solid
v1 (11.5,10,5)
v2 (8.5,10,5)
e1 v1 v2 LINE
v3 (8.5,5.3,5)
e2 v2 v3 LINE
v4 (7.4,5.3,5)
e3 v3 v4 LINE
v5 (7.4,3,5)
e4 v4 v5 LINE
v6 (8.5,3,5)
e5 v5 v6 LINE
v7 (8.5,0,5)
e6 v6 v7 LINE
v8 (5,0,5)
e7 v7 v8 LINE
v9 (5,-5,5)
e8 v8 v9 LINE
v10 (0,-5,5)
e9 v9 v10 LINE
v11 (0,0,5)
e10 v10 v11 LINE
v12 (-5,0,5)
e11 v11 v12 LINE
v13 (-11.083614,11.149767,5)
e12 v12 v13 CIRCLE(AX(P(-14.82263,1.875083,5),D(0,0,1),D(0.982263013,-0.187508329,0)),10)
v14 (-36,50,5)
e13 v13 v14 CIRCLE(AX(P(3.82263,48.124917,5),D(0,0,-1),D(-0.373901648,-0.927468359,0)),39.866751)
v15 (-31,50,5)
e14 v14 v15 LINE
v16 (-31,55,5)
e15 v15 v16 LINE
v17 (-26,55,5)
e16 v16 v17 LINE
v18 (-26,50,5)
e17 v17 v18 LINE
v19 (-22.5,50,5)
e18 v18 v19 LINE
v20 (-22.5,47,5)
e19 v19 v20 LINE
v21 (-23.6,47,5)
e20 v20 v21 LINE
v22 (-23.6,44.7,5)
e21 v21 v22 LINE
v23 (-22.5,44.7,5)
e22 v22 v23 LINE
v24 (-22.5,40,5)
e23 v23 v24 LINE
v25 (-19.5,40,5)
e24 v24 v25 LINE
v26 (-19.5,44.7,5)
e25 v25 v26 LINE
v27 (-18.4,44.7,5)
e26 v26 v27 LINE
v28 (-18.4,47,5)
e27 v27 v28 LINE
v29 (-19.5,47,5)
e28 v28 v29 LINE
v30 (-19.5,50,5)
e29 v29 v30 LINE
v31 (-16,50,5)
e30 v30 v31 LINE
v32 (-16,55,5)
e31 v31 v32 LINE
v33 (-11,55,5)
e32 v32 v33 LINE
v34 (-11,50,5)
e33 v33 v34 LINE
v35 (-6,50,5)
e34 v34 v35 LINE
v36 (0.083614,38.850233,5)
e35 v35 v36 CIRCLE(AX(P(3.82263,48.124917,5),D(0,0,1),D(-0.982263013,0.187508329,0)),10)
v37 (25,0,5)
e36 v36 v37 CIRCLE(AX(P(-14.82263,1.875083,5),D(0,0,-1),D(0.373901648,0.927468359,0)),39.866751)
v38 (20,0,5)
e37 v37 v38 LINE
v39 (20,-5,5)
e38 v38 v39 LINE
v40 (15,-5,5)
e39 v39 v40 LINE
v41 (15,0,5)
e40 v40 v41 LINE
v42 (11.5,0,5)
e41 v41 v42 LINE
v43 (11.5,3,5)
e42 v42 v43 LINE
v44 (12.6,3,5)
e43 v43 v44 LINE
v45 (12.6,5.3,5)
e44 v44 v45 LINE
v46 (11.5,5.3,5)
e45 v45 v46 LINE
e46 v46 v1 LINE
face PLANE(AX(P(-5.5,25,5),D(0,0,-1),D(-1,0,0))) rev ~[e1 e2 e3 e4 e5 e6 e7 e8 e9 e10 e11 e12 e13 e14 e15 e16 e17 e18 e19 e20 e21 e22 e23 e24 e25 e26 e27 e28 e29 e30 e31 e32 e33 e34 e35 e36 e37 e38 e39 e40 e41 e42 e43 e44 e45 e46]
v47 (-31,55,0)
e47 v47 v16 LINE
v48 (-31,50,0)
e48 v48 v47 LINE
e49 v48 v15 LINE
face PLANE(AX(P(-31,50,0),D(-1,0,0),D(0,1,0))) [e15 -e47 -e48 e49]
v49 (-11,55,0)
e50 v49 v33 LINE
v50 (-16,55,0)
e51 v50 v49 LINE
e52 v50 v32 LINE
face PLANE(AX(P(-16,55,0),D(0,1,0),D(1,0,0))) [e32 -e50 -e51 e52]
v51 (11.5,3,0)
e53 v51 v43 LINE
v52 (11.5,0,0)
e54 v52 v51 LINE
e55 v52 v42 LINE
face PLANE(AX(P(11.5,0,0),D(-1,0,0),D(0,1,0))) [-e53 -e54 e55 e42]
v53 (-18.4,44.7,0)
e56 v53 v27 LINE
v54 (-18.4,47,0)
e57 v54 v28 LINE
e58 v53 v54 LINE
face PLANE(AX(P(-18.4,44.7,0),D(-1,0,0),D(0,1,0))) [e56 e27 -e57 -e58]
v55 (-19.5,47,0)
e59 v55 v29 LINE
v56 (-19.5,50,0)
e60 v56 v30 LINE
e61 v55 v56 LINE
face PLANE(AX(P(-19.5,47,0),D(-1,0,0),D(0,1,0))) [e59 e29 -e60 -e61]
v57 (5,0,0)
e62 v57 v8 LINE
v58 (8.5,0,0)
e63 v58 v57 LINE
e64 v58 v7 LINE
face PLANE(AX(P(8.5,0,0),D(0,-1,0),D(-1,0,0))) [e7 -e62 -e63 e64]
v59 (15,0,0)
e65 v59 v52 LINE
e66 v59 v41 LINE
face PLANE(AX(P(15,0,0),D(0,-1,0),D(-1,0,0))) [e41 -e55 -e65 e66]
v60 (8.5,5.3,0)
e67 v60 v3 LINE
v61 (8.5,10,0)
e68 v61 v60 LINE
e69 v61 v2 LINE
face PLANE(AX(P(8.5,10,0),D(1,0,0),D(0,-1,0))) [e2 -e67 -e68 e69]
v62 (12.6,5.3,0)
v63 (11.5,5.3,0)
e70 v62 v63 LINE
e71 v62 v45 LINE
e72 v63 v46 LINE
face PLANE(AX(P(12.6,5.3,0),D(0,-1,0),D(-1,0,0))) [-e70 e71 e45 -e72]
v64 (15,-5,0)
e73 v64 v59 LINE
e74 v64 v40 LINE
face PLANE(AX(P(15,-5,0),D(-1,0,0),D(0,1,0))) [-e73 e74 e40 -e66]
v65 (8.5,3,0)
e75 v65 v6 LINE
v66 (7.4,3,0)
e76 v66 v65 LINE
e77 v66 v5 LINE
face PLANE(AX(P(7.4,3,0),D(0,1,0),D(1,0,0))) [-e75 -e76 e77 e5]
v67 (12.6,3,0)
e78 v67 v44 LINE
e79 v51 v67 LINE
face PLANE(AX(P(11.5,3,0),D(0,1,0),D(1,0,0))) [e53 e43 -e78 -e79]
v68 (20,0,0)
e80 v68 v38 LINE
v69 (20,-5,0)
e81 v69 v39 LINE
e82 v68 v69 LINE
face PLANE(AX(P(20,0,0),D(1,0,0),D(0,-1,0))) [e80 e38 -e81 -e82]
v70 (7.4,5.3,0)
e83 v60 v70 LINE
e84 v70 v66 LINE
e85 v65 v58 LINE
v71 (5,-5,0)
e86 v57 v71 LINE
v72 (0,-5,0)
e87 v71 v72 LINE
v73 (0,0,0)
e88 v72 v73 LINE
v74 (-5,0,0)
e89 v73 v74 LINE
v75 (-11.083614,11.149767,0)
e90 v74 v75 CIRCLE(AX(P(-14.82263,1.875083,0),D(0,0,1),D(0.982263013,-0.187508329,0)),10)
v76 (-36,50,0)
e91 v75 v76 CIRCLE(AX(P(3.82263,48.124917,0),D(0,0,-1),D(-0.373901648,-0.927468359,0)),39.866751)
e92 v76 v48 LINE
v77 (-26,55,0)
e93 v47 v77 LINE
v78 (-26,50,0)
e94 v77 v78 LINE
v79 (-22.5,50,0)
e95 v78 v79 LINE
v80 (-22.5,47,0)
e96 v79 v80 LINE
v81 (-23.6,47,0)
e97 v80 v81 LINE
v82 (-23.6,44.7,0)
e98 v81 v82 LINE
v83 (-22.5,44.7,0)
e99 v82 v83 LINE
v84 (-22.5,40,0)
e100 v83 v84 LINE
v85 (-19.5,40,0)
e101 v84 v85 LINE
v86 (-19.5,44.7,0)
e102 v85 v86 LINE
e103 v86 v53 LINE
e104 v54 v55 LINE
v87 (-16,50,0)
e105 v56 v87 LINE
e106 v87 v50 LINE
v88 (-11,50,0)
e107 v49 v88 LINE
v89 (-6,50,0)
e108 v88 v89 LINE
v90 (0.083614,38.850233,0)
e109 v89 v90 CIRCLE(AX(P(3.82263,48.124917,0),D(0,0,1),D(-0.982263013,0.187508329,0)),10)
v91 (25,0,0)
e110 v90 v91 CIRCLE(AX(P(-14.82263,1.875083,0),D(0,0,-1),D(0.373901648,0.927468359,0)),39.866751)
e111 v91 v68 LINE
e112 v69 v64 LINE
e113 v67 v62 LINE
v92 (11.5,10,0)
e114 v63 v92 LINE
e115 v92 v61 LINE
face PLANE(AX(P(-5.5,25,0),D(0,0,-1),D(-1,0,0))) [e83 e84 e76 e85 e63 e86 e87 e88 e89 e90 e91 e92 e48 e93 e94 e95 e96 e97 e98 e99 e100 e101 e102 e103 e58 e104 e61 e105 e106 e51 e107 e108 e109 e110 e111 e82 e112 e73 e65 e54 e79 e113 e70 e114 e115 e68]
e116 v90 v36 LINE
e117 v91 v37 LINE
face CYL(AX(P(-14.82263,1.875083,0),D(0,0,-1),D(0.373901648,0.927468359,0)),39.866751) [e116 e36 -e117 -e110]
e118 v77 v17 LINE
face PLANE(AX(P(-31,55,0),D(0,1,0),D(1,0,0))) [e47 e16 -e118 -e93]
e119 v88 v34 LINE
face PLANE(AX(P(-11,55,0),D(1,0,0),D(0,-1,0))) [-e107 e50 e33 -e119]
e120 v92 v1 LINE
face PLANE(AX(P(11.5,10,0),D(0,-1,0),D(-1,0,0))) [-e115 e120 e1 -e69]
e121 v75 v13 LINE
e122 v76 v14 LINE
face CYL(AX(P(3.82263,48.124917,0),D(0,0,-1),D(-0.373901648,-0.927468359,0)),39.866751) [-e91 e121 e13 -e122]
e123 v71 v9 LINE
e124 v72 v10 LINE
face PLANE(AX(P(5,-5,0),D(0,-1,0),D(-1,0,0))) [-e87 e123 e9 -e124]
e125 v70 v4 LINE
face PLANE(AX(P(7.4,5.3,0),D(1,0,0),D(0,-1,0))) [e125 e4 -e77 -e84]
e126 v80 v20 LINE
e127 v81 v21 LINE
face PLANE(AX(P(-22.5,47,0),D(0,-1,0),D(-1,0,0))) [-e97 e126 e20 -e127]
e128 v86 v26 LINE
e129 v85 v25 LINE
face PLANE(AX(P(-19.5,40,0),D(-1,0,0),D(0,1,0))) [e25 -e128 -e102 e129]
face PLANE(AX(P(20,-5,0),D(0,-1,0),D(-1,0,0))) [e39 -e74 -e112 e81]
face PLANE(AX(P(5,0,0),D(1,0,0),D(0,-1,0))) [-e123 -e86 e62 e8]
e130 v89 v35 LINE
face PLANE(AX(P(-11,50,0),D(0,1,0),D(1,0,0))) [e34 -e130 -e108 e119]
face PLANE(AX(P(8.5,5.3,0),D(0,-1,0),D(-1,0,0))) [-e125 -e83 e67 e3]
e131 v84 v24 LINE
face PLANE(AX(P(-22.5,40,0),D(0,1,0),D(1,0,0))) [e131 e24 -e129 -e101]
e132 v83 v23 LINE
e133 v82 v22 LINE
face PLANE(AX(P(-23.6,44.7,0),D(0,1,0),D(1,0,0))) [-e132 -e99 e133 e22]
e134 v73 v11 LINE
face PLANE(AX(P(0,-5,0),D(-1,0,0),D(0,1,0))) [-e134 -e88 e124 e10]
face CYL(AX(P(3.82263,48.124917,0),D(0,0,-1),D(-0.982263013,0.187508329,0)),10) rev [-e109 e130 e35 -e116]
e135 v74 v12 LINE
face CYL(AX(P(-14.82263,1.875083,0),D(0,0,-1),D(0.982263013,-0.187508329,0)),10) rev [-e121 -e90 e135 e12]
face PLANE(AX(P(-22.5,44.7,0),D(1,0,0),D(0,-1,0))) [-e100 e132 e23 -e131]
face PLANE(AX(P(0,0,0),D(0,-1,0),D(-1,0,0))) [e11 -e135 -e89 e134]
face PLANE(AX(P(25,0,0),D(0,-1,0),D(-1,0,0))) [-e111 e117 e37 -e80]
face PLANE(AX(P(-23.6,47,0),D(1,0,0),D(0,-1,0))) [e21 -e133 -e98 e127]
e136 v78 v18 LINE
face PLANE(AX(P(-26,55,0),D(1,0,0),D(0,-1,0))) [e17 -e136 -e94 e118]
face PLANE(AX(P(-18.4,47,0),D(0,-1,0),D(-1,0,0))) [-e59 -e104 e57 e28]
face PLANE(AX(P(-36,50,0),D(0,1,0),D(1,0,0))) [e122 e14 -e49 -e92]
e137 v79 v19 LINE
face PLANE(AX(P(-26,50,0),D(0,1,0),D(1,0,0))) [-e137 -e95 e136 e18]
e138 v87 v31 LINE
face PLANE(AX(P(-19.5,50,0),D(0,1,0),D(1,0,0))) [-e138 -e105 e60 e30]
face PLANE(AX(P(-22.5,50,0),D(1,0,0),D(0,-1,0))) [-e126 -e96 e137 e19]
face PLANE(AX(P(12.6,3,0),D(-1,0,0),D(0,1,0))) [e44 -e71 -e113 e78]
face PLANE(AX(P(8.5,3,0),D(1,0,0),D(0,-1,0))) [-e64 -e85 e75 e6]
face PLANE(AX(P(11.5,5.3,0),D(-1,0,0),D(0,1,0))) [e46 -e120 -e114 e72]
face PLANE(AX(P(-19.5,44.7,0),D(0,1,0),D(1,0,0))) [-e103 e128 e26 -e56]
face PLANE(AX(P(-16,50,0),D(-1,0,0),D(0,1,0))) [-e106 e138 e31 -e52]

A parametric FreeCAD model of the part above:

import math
import FreeCAD as App
import Part
import Sketcher

V = App.Vector

doc = App.newDocument("Part")
body = doc.addObject("PartDesign::Body", "Body")

sketch1 = body.newObject("Sketcher::SketchObject", "Sketch")
sketch1.AttachmentSupport = (doc.getObject("XY_Plane"), [""])
sketch1.MapMode = "FlatFace"
sketch1.addGeometry([
    Part.LineSegment(V(-6, 50, 0), V(-11, 50, 0)),
    Part.LineSegment(V(-11, 50, 0), V(-11, 55, 0)),
    Part.LineSegment(V(-11, 55, 0), V(-16, 55, 0)),
    Part.LineSegment(V(-16, 55, 0), V(-16, 50, 0)),
    Part.LineSegment(V(-16, 50, 0), V(-19.5, 50, 0)),
    Part.LineSegment(V(-19.5, 50, 0), V(-19.5, 47, 0)),
    Part.LineSegment(V(-19.5, 47, 0), V(-18.4, 47, 0)),
    Part.LineSegment(V(-18.4, 47, 0), V(-18.4, 44.7, 0)),
    Part.LineSegment(V(-18.4, 44.7, 0), V(-19.5, 44.7, 0)),
    Part.LineSegment(V(-19.5, 44.7, 0), V(-19.5, 40, 0)),
    Part.LineSegment(V(-19.5, 40, 0), V(-22.5, 40, 0)),
    Part.LineSegment(V(-22.5, 40, 0), V(-22.5, 44.7, 0)),
    Part.LineSegment(V(-22.5, 44.7, 0), V(-23.6, 44.7, 0)),
    Part.LineSegment(V(-23.6, 44.7, 0), V(-23.6, 47, 0)),
    Part.LineSegment(V(-23.6, 47, 0), V(-22.5, 47, 0)),
    Part.LineSegment(V(-22.5, 47, 0), V(-22.5, 50, 0)),
    Part.LineSegment(V(-22.5, 50, 0), V(-26, 50, 0)),
    Part.LineSegment(V(-26, 50, 0), V(-26, 55, 0)),
    Part.LineSegment(V(-26, 55, 0), V(-31, 55, 0)),
    Part.LineSegment(V(-31, 55, 0), V(-31, 50, 0)),
    Part.LineSegment(V(-31, 50, 0), V(-36, 50, 0)),
    Part.ArcOfCircle(Part.Circle(V(3.82263, 48.124917, 0), V(0, 0, 1), 39.866751), math.radians(177.304169), math.radians(248.043556)),
    Part.ArcOfCircle(Part.Circle(V(-14.82263, 1.875083, 0), V(0, 0, 1), 10), math.radians(-10.807409), math.radians(68.043556)),
    Part.LineSegment(V(-5, 0, 0), V(0, 0, 0)),
    Part.LineSegment(V(0, 0, 0), V(0, -5, 0)),
    Part.LineSegment(V(0, -5, 0), V(5, -5, 0)),
    Part.LineSegment(V(5, -5, 0), V(5, 0, 0)),
    Part.LineSegment(V(5, 0, 0), V(8.5, 0, 0)),
    Part.LineSegment(V(8.5, 0, 0), V(8.5, 3, 0)),
    Part.LineSegment(V(8.5, 3, 0), V(7.4, 3, 0)),
    Part.LineSegment(V(7.4, 3, 0), V(7.4, 5.3, 0)),
    Part.LineSegment(V(7.4, 5.3, 0), V(8.5, 5.3, 0)),
    Part.LineSegment(V(8.5, 5.3, 0), V(8.5, 10, 0)),
    Part.LineSegment(V(8.5, 10, 0), V(11.5, 10, 0)),
    Part.LineSegment(V(11.5, 10, 0), V(11.5, 5.3, 0)),
    Part.LineSegment(V(11.5, 5.3, 0), V(12.6, 5.3, 0)),
    Part.LineSegment(V(12.6, 5.3, 0), V(12.6, 3, 0)),
    Part.LineSegment(V(12.6, 3, 0), V(11.5, 3, 0)),
    Part.LineSegment(V(11.5, 3, 0), V(11.5, 0, 0)),
    Part.LineSegment(V(11.5, 0, 0), V(15, 0, 0)),
    Part.LineSegment(V(15, 0, 0), V(15, -5, 0)),
    Part.LineSegment(V(15, -5, 0), V(20, -5, 0)),
    Part.LineSegment(V(20, -5, 0), V(20, 0, 0)),
    Part.LineSegment(V(20, 0, 0), V(25, 0, 0)),
    Part.ArcOfCircle(Part.Circle(V(-14.82263, 1.875083, 0), V(0, 0, 1), 39.866751), math.radians(-2.695831), math.radians(68.043556)),
    Part.ArcOfCircle(Part.Circle(V(3.82263, 48.124917, 0), V(0, 0, 1), 10), math.radians(169.192591), math.radians(248.043556)),
], False)
sketch1.addConstraint([
    Sketcher.Constraint("Coincident", 0, 2, 1, 1),
    Sketcher.Constraint("Coincident", 1, 2, 2, 1),
    Sketcher.Constraint("Coincident", 2, 2, 3, 1),
    Sketcher.Constraint("Coincident", 3, 2, 4, 1),
    Sketcher.Constraint("Coincident", 4, 2, 5, 1),
    Sketcher.Constraint("Coincident", 5, 2, 6, 1),
    Sketcher.Constraint("Coincident", 6, 2, 7, 1),
    Sketcher.Constraint("Coincident", 7, 2, 8, 1),
    Sketcher.Constraint("Coincident", 8, 2, 9, 1),
    Sketcher.Constraint("Coincident", 9, 2, 10, 1),
    Sketcher.Constraint("Coincident", 10, 2, 11, 1),
    Sketcher.Constraint("Coincident", 11, 2, 12, 1),
    Sketcher.Constraint("Coincident", 12, 2, 13, 1),
    Sketcher.Constraint("Coincident", 13, 2, 14, 1),
    Sketcher.Constraint("Coincident", 14, 2, 15, 1),
    Sketcher.Constraint("Coincident", 15, 2, 16, 1),
    Sketcher.Constraint("Coincident", 16, 2, 17, 1),
    Sketcher.Constraint("Coincident", 17, 2, 18, 1),
    Sketcher.Constraint("Coincident", 18, 2, 19, 1),
    Sketcher.Constraint("Coincident", 19, 2, 20, 1),
    Sketcher.Constraint("Coincident", 20, 2, 21, 1),
    Sketcher.Constraint("Tangent", 21, 2, 22, 2),
    Sketcher.Constraint("Coincident", 22, 1, 23, 1),
    Sketcher.Constraint("Coincident", 23, 2, 24, 1),
    Sketcher.Constraint("Coincident", 24, 2, 25, 1),
    Sketcher.Constraint("Coincident", 25, 2, 26, 1),
    Sketcher.Constraint("Coincident", 26, 2, 27, 1),
    Sketcher.Constraint("Coincident", 27, 2, 28, 1),
    Sketcher.Constraint("Coincident", 28, 2, 29, 1),
    Sketcher.Constraint("Coincident", 29, 2, 30, 1),
    Sketcher.Constraint("Coincident", 30, 2, 31, 1),
    Sketcher.Constraint("Coincident", 31, 2, 32, 1),
    Sketcher.Constraint("Coincident", 32, 2, 33, 1),
    Sketcher.Constraint("Coincident", 33, 2, 34, 1),
    Sketcher.Constraint("Coincident", 34, 2, 35, 1),
    Sketcher.Constraint("Coincident", 35, 2, 36, 1),
    Sketcher.Constraint("Coincident", 36, 2, 37, 1),
    Sketcher.Constraint("Coincident", 37, 2, 38, 1),
    Sketcher.Constraint("Coincident", 38, 2, 39, 1),
    Sketcher.Constraint("Coincident", 39, 2, 40, 1),
    Sketcher.Constraint("Coincident", 40, 2, 41, 1),
    Sketcher.Constraint("Coincident", 41, 2, 42, 1),
    Sketcher.Constraint("Coincident", 42, 2, 43, 1),
    Sketcher.Constraint("Coincident", 43, 2, 44, 1),
    Sketcher.Constraint("Tangent", 44, 2, 45, 2),
    Sketcher.Constraint("Coincident", 45, 1, 0, 1),
    Sketcher.Constraint("Horizontal", 0),
    Sketcher.Constraint("Vertical", 1),
    Sketcher.Constraint("Horizontal", 2),
    Sketcher.Constraint("Vertical", 3),
    Sketcher.Constraint("Horizontal", 4),
    Sketcher.Constraint("Vertical", 5),
    Sketcher.Constraint("Horizontal", 6),
    Sketcher.Constraint("Vertical", 7),
    Sketcher.Constraint("Horizontal", 8),
    Sketcher.Constraint("Vertical", 9),
    Sketcher.Constraint("Horizontal", 10),
    Sketcher.Constraint("Vertical", 11),
    Sketcher.Constraint("Horizontal", 12),
    Sketcher.Constraint("Vertical", 13),
    Sketcher.Constraint("Horizontal", 14),
    Sketcher.Constraint("Vertical", 15),
    Sketcher.Constraint("Horizontal", 16),
    Sketcher.Constraint("Vertical", 17),
    Sketcher.Constraint("Horizontal", 18),
    Sketcher.Constraint("Vertical", 19),
    Sketcher.Constraint("Horizontal", 20),
    Sketcher.Constraint("Horizontal", 23),
    Sketcher.Constraint("Vertical", 24),
    Sketcher.Constraint("Horizontal", 25),
    Sketcher.Constraint("Vertical", 26),
    Sketcher.Constraint("Horizontal", 27),
    Sketcher.Constraint("Vertical", 28),
    Sketcher.Constraint("Horizontal", 29),
    Sketcher.Constraint("Vertical", 30),
    Sketcher.Constraint("Horizontal", 31),
    Sketcher.Constraint("Vertical", 32),
    Sketcher.Constraint("Horizontal", 33),
    Sketcher.Constraint("Vertical", 34),
    Sketcher.Constraint("Horizontal", 35),
    Sketcher.Constraint("Vertical", 36),
    Sketcher.Constraint("Horizontal", 37),
    Sketcher.Constraint("Vertical", 38),
    Sketcher.Constraint("Horizontal", 39),
    Sketcher.Constraint("Vertical", 40),
    Sketcher.Constraint("Horizontal", 41),
    Sketcher.Constraint("Vertical", 42),
    Sketcher.Constraint("Horizontal", 43),
    Sketcher.Constraint("Coincident", 23, 2, -1, 1),
    Sketcher.Constraint("Coincident", 44, 3, 22, 3),
    Sketcher.Constraint("Coincident", 45, 3, 21, 3),
    Sketcher.Constraint("Equal", 21, 44),
    Sketcher.Constraint("Symmetric", 22, 1, 26, 2, -1, 1),
    Sketcher.Constraint("PointOnObject", 38, 2, -1),
    Sketcher.Constraint("PointOnObject", 42, 2, -1),
    Sketcher.Constraint("Horizontal", 0, 2, 3, 2),
    Sketcher.Constraint("Horizontal", 8, 2, 11, 2),
    Sketcher.Constraint("Horizontal", 6, 2, 13, 2),
    Sketcher.Constraint("Horizontal", 4, 2, 15, 2),
    Sketcher.Constraint("Horizontal", 2, 2, 17, 2),
    Sketcher.Constraint("Horizontal", 16, 2, 19, 2),
    Sketcher.Constraint("Horizontal", 31, 2, 34, 2),
    Sketcher.Constraint("Horizontal", 29, 2, 36, 2),
    Sketcher.Constraint("Horizontal", 25, 2, 40, 2),
    Sketcher.Constraint("Vertical", 5, 2, 8, 2),
    Sketcher.Constraint("Vertical", 11, 2, 14, 2),
    Sketcher.Constraint("Vertical", 28, 2, 31, 2),
    Sketcher.Constraint("Vertical", 34, 2, 37, 2),
    Sketcher.Constraint("Equal", 0, 2),
    Sketcher.Constraint("Equal", 8, 12),
    Sketcher.Constraint("Equal", 4, 16),
    Sketcher.Constraint("Equal", 2, 18),
    Sketcher.Constraint("Equal", 18, 20),
    Sketcher.Constraint("Equal", 20, 23),
    Sketcher.Constraint("Equal", 16, 27),
    Sketcher.Constraint("Equal", 14, 29),
    Sketcher.Constraint("Equal", 10, 33),
    Sketcher.Constraint("Equal", 31, 35),
    Sketcher.Constraint("Equal", 27, 39),
    Sketcher.Constraint("Equal", 25, 41),
    Sketcher.Constraint("Equal", 41, 43),
    Sketcher.Constraint("Equal", 43, 1),
    Sketcher.Constraint("Equal", 33, 5),
    Sketcher.Constraint("Equal", 19, 24),
    Sketcher.Constraint("Equal", 15, 28),
    Sketcher.Constraint("Equal", 13, 30),
    Sketcher.Constraint("Equal", 11, 32),
    Sketcher.Constraint("Radius", 22, 10.0),
    Sketcher.Constraint("DistanceX", 0, 2, 0, 1, 5.0),
    Sketcher.Constraint("DistanceX", 10, 2, 10, 1, 3.0),
    Sketcher.Constraint("DistanceX", 4, 2, 4, 1, 3.5),
    Sketcher.Constraint("DistanceX", 6, 1, 6, 2, 1.1),
    Sketcher.Constraint("DistanceY", 7, 2, 7, 1, 2.3),
    Sketcher.Constraint("DistanceY", 9, 2, 9, 1, 4.7),
    Sketcher.Constraint("DistanceX", 0, 2, -1, 1, 11.0),
    Sketcher.Constraint("DistanceY", -1, 1, 0, 2, 50.0),
])
pad1 = body.newObject("PartDesign::Pad", "Pad")
pad1.Profile = sketch1
pad1.Length = 5

doc.recompute()
